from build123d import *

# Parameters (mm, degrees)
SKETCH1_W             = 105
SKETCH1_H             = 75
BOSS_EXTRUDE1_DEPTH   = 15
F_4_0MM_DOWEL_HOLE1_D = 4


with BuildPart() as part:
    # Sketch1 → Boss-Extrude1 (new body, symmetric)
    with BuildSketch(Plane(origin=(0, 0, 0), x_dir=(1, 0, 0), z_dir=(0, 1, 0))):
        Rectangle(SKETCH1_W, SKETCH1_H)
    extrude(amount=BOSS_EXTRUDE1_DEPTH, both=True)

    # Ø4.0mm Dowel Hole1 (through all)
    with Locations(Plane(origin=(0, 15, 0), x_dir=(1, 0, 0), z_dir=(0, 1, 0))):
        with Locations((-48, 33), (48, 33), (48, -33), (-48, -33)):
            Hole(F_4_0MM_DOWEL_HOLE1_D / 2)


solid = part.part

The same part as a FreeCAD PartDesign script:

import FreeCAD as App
import Part
import Sketcher
Q = App.Units.Quantity

doc = App.newDocument("Part")
body = doc.addObject("PartDesign::Body", "Body")

sketch1 = body.newObject("Sketcher::SketchObject", "Sketch")
sketch1.AttachmentSupport = (doc.getObject("XZ_Plane"), [""])
sketch1.MapMode = "FlatFace"
sketch1.addGeometry([
    Part.LineSegment(App.Vector(-52.5, -37.5, 0), App.Vector(-52.5, 37.5, 0)),
    Part.LineSegment(App.Vector(-52.5, 37.5, 0), App.Vector(52.5, 37.5, 0)),
    Part.LineSegment(App.Vector(52.5, 37.5, 0), App.Vector(52.5, -37.5, 0)),
    Part.LineSegment(App.Vector(52.5, -37.5, 0), App.Vector(-52.5, -37.5, 0)),
], False)
sketch1.addConstraint([
    Sketcher.Constraint("Coincident", 0, 2, 1, 1),
    Sketcher.Constraint("Coincident", 1, 2, 2, 1),
    Sketcher.Constraint("Coincident", 2, 2, 3, 1),
    Sketcher.Constraint("Coincident", 3, 2, 0, 1),
    Sketcher.Constraint("Vertical", 0),
    Sketcher.Constraint("Horizontal", 1),
    Sketcher.Constraint("Vertical", 2),
    Sketcher.Constraint("Horizontal", 3),
    Sketcher.Constraint("Symmetric", 0, 2, 2, 2, -1, 1),
    Sketcher.Constraint("DistanceX", 1, 1, 1, 2, Q("105 mm")),
    Sketcher.Constraint("DistanceY", 0, 1, 0, 2, Q("75 mm")),
])
pad1 = body.newObject("PartDesign::Pad", "Pad")
pad1.Profile = sketch1
pad1.Length = 30
pad1.Midplane = True

sketch2 = body.newObject("Sketcher::SketchObject", "Sketch001")
sketch2.AttachmentSupport = (doc.getObject("XZ_Plane"), [""])
sketch2.MapMode = "FlatFace"
sketch2.AttachmentOffset = App.Placement(App.Vector(0, 0, -15), App.Rotation())
sketch2.addGeometry([
    Part.Circle(App.Vector(-48, -33, 0), App.Vector(0, 0, 1), 2),
    Part.Circle(App.Vector(48, -33, 0), App.Vector(0, 0, 1), 2),
    Part.Circle(App.Vector(48, 33, 0), App.Vector(0, 0, 1), 2),
    Part.Circle(App.Vector(-48, 33, 0), App.Vector(0, 0, 1), 2),
], False)
sketch2.addConstraint([
    Sketcher.Constraint("Equal", 0, 1),
    Sketcher.Constraint("Equal", 1, 2),
    Sketcher.Constraint("Equal", 2, 3),
    Sketcher.Constraint("Symmetric", 0, 3, 2, 3, -1, 1),
    Sketcher.Constraint("Symmetric", 1, 3, 3, 3, -1, 1),
    Sketcher.Constraint("Symmetric", 0, 3, 1, 3, -2),
    Sketcher.Constraint("Diameter", 0, Q("4 mm")),
    Sketcher.Constraint("DistanceX", 0, 3, -1, 1, Q("48 mm")),
    Sketcher.Constraint("DistanceY", 0, 3, -1, 1, Q("33 mm")),
])
doc.recompute()
hole = body.newObject("PartDesign::Hole", "Hole")
hole.Profile = sketch2
hole.ThreadType = "None"
hole.Diameter = 4
hole.DepthType = "ThroughAll"
hole.Reversed = True

doc.recompute()
